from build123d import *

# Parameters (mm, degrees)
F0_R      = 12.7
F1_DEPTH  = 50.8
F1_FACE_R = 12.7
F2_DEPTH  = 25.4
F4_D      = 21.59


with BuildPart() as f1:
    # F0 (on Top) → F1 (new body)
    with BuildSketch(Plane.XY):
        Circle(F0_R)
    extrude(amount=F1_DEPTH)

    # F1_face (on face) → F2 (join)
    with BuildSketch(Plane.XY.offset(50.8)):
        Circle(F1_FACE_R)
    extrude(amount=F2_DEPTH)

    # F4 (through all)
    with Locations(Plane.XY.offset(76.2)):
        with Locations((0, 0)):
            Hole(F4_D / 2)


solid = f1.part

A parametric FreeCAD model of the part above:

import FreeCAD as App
import Part
import Sketcher

V = App.Vector
Q = App.Units.Quantity

doc = App.newDocument("Part")
body = doc.addObject("PartDesign::Body", "Body")

# Sketch on XY plane
sketch1 = doc.addObject("Sketcher::SketchObject", "Sketch")
body.addObject(sketch1)
sketch1.AttachmentSupport = (doc.XY_Plane, [""])
sketch1.MapMode = "FlatFace"
sketch1.addGeometry(Part.Circle(V(0, 0, 0), V(0, 0, 1), 13), False)
sketch1.addConstraint(Sketcher.Constraint("Coincident", 0, 3, -1, 1))
sketch1.addConstraint(Sketcher.Constraint("Diameter", 0, Q("1 in")))
pad1 = doc.addObject("PartDesign::Pad", "Pad")
body.addObject(pad1)
pad1.Profile = sketch1
pad1.Length = Q("2 in")

# Sketch on XY plane
sketch2 = doc.addObject("Sketcher::SketchObject", "Sketch001")
body.addObject(sketch2)
sketch2.AttachmentSupport = (doc.XY_Plane, [""])
sketch2.MapMode = "FlatFace"
sketch2.AttachmentOffset = App.Placement(V(0, 0, 2 * 25.4), App.Rotation())
sketch2.addGeometry(Part.Circle(V(0, 0, 0), V(0, 0, 1), 13), False)
sketch2.addConstraint(Sketcher.Constraint("Coincident", 0, 3, -1, 1))
sketch2.addConstraint(Sketcher.Constraint("Diameter", 0, Q("1 in")))
pad2 = doc.addObject("PartDesign::Pad", "Pad001")
body.addObject(pad2)
pad2.Profile = sketch2
pad2.Length = Q("1 in")

# Sketch on XY plane
sketch3 = doc.addObject("Sketcher::SketchObject", "Sketch002")
body.addObject(sketch3)
sketch3.AttachmentSupport = (doc.XY_Plane, [""])
sketch3.MapMode = "FlatFace"
sketch3.AttachmentOffset = App.Placement(V(0, 0, 3 * 25.4), App.Rotation())
sketch3.addGeometry(Part.Circle(V(0, 0, 0), V(0, 0, 1), 11), False)
sketch3.addConstraint(Sketcher.Constraint("Coincident", 0, 3, -1, 1))
sketch3.addConstraint(Sketcher.Constraint("Diameter", 0, Q("0.85 in")))
doc.recompute()
hole = doc.addObject("PartDesign::Hole", "Hole")
body.addObject(hole)
hole.Profile = sketch3
hole.ThreadType = "None"
hole.Diameter = Q("0.85 in")
hole.DepthType = "ThroughAll"

doc.recompute()
